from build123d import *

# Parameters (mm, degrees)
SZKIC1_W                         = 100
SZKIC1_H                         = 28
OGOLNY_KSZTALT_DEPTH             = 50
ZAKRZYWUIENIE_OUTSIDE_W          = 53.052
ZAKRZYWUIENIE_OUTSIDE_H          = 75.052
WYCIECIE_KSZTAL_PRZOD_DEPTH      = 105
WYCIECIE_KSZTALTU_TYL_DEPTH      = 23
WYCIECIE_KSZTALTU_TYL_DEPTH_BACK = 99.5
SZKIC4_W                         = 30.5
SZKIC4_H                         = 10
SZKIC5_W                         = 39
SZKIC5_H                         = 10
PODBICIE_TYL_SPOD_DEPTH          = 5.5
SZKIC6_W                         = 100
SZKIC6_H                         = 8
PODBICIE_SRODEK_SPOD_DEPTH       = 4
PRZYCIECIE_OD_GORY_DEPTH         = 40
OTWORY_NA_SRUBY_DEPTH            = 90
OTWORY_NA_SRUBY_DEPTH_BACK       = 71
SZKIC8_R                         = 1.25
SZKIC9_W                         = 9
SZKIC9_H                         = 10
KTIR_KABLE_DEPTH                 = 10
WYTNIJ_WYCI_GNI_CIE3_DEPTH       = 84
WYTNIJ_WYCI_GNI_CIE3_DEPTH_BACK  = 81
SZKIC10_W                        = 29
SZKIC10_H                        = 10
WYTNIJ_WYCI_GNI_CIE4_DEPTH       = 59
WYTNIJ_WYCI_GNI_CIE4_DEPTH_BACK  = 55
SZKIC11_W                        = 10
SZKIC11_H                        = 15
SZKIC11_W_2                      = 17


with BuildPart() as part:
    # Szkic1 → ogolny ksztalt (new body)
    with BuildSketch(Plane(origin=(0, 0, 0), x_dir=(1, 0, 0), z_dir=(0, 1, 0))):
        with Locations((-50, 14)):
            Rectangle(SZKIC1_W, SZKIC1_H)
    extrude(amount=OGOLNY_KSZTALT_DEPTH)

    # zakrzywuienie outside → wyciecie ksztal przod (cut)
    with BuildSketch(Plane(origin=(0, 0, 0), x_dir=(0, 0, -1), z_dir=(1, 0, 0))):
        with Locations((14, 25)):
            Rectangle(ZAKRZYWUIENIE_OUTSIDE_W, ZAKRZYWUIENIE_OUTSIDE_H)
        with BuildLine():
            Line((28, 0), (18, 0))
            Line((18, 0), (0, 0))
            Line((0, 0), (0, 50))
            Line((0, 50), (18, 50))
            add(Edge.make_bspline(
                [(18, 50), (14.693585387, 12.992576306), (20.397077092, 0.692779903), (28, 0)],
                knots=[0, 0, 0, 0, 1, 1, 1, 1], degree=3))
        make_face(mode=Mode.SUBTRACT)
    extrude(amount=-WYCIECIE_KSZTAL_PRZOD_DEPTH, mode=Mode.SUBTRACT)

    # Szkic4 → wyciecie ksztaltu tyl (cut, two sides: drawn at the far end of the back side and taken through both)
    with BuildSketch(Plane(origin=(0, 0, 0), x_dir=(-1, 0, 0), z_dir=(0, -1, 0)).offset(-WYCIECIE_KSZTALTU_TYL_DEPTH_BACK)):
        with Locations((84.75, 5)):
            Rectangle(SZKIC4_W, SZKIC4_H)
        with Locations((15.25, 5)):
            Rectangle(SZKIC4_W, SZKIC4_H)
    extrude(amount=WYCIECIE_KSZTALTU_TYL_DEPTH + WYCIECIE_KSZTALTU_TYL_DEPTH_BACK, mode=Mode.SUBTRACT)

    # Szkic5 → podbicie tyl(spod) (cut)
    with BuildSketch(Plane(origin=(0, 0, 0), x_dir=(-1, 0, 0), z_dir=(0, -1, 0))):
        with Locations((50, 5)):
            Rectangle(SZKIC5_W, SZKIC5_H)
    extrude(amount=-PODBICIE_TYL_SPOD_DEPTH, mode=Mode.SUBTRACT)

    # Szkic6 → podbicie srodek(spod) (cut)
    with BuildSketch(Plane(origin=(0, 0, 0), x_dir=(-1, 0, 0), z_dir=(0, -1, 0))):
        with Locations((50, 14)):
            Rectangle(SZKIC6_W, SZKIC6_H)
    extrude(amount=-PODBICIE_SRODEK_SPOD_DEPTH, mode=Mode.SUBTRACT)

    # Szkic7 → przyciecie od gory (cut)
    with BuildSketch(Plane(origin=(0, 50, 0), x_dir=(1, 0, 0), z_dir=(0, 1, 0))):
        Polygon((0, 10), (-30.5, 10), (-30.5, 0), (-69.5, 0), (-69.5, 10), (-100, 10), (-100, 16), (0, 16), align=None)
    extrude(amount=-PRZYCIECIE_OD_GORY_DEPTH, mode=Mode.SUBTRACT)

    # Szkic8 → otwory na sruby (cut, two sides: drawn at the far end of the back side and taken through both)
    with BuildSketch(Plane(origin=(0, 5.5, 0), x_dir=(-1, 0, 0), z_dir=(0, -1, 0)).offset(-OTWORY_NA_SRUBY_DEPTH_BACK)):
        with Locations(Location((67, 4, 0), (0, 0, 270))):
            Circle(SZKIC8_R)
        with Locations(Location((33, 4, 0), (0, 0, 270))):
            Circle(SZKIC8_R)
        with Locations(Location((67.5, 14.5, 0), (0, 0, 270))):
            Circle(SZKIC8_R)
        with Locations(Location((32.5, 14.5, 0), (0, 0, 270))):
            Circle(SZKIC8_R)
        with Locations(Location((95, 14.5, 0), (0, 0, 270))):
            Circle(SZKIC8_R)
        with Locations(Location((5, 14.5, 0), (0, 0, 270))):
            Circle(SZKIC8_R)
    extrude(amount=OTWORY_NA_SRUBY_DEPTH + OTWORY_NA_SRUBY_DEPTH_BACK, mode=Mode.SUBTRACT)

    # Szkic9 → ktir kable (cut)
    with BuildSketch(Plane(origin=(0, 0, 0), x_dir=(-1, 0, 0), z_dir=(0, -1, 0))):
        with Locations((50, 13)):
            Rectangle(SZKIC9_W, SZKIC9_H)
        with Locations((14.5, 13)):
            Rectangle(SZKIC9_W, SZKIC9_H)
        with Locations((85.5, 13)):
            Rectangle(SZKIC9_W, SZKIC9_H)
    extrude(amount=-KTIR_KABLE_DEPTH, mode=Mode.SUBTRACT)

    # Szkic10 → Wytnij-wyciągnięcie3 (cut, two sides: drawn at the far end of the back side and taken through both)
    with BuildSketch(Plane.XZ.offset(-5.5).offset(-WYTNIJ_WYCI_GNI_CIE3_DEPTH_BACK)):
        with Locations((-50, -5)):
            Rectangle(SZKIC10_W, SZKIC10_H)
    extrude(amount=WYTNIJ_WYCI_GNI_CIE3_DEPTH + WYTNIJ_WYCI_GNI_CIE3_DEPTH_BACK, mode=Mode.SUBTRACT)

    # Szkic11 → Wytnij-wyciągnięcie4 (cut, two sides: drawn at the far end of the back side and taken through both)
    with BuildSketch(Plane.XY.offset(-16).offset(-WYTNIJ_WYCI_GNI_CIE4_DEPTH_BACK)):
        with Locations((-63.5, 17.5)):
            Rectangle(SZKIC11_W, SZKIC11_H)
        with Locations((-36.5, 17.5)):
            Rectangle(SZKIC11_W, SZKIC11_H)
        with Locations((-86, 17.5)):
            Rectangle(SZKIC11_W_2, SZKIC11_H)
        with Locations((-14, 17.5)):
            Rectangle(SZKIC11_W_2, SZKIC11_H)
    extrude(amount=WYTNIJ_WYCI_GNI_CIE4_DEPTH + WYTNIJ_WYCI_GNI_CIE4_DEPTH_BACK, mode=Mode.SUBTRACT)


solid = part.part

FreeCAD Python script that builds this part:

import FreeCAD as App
import Part
import Sketcher

V = App.Vector


def add_polygon(sketch, points):
    """Adds a closed chain of lines whose ends are joined by coincident constraints."""
    first, n = sketch.GeometryCount, len(points)
    for a, b in zip(points, points[1:] + points[:1]):
        sketch.addGeometry(Part.LineSegment(App.Vector(*a, 0), App.Vector(*b, 0)), False)
    for i in range(n):
        sketch.addConstraint(Sketcher.Constraint("Coincident", first + i, 2, first + (i + 1) % n, 1))

doc = App.newDocument("Part")
body = doc.addObject("PartDesign::Body", "Body")

# Sketch on XZ plane
sketch1 = body.newObject("Sketcher::SketchObject", "Sketch")
sketch1.AttachmentSupport = (doc.getObject("XZ_Plane"), [""])
sketch1.MapMode = "FlatFace"
add_polygon(sketch1, [(-100, -28), (-100, 0), (0, 0), (0, -28)])  # lines 0-3
sketch1.addConstraint(Sketcher.Constraint("Vertical", 0))
sketch1.addConstraint(Sketcher.Constraint("Horizontal", 1))
sketch1.addConstraint(Sketcher.Constraint("Vertical", 2))
sketch1.addConstraint(Sketcher.Constraint("Horizontal", 3))
sketch1.addConstraint(Sketcher.Constraint("Coincident", 1, 2, -1, 1))
sketch1.addConstraint(Sketcher.Constraint("DistanceX", 1, 1, 1, 2, 100.0))
sketch1.addConstraint(Sketcher.Constraint("DistanceY", 0, 1, 0, 2, 28.0))
pad1 = body.newObject("PartDesign::Pad", "Pad")
pad1.Profile = sketch1
pad1.Length = 50
pad1.Reversed = True

# Sketch on YZ plane
sketch2 = body.newObject("Sketcher::SketchObject", "Sketch001")
sketch2.AttachmentSupport = (doc.getObject("YZ_Plane"), [""])
sketch2.MapMode = "FlatFace"
add_polygon(sketch2, [(62.526, 12.526), (-12.526, 12.526), (-12.526, -40.526), (62.526, -40.526)])  # lines 0-3
sketch2.addGeometry(Part.BSplineCurve([V(50, -18, 0), V(12.992576, -14.693585, 0), V(0.69278, -20.397077, 0), V(0, -28, 0)], [4, 4], [0, 1], False, 3, [1, 1, 1, 1], False), False)  # 4
sketch2.addGeometry(Part.LineSegment(V(0, -28, 0), V(0, 0, 0)), False)  # 5
sketch2.addGeometry(Part.LineSegment(V(0, 0, 0), V(50, 0, 0)), False)  # 6
sketch2.addGeometry(Part.LineSegment(V(50, 0, 0), V(50, -18, 0)), False)  # 7
sketch2.addConstraint(Sketcher.Constraint("Block", 4))
sketch2.addConstraint(Sketcher.Constraint("Coincident", 4, 2, 5, 1))
sketch2.addConstraint(Sketcher.Constraint("Coincident", 5, 2, 6, 1))
sketch2.addConstraint(Sketcher.Constraint("Coincident", 6, 2, 7, 1))
sketch2.addConstraint(Sketcher.Constraint("Coincident", 7, 2, 4, 1))
sketch2.addConstraint(Sketcher.Constraint("Horizontal", 0))
sketch2.addConstraint(Sketcher.Constraint("Vertical", 1))
sketch2.addConstraint(Sketcher.Constraint("Horizontal", 2))
sketch2.addConstraint(Sketcher.Constraint("Vertical", 3))
sketch2.addConstraint(Sketcher.Constraint("Vertical", 5))
sketch2.addConstraint(Sketcher.Constraint("Horizontal", 6))
sketch2.addConstraint(Sketcher.Constraint("Vertical", 7))
sketch2.addConstraint(Sketcher.Constraint("PointOnObject", 6, 2, -1))
sketch2.addConstraint(Sketcher.Constraint("DistanceX", 0, 2, 0, 1, 75.052))
sketch2.addConstraint(Sketcher.Constraint("DistanceY", 1, 2, 1, 1, 53.052))
sketch2.addConstraint(Sketcher.Constraint("DistanceX", 0, 2, -1, 1, 12.526))
sketch2.addConstraint(Sketcher.Constraint("DistanceY", -1, 1, 0, 2, 12.526))
pocket1 = body.newObject("PartDesign::Pocket", "Pocket")
pocket1.Profile = sketch2
pocket1.Length = 105

# Sketch on XZ plane
sketch3 = body.newObject("Sketcher::SketchObject", "Sketch002")
sketch3.AttachmentSupport = (doc.getObject("XZ_Plane"), [""])
sketch3.MapMode = "FlatFace"
add_polygon(sketch3, [(-70, -10), (-70, 0), (-100, 0), (-100, -10)])  # lines 0-3
add_polygon(sketch3, [(0, -10), (0, 0), (-30, 0), (-30, -10)])  # lines 4-7
sketch3.addConstraint(Sketcher.Constraint("Vertical", 0))
sketch3.addConstraint(Sketcher.Constraint("Horizontal", 1))
sketch3.addConstraint(Sketcher.Constraint("Vertical", 2))
sketch3.addConstraint(Sketcher.Constraint("Horizontal", 3))
sketch3.addConstraint(Sketcher.Constraint("Vertical", 4))
sketch3.addConstraint(Sketcher.Constraint("Horizontal", 5))
sketch3.addConstraint(Sketcher.Constraint("Vertical", 6))
sketch3.addConstraint(Sketcher.Constraint("Horizontal", 7))
sketch3.addConstraint(Sketcher.Constraint("Coincident", 4, 2, -1, 1))
sketch3.addConstraint(Sketcher.Constraint("PointOnObject", 0, 2, -1))
sketch3.addConstraint(Sketcher.Constraint("Horizontal", 3, 2, 6, 2))
sketch3.addConstraint(Sketcher.Constraint("Equal", 3, 5))
sketch3.addConstraint(Sketcher.Constraint("DistanceY", 0, 1, 0, 2, 10.0))
sketch3.addConstraint(Sketcher.Constraint("DistanceX", 1, 2, 1, 1, 30.5))
sketch3.addConstraint(Sketcher.Constraint("DistanceX", 1, 2, -1, 1, 100.0))
pocket2 = body.newObject("PartDesign::Pocket", "Pocket001")
pocket2.Profile = sketch3
pocket2.Type = "ThroughAll"
pocket2.Midplane = True

# Sketch on XZ plane
sketch4 = body.newObject("Sketcher::SketchObject", "Sketch003")
sketch4.AttachmentSupport = (doc.getObject("XZ_Plane"), [""])
sketch4.MapMode = "FlatFace"
add_polygon(sketch4, [(-30, -10), (-30, 0), (-70, 0), (-70, -10)])  # lines 0-3
sketch4.addConstraint(Sketcher.Constraint("Vertical", 0))
sketch4.addConstraint(Sketcher.Constraint("Horizontal", 1))
sketch4.addConstraint(Sketcher.Constraint("Vertical", 2))
sketch4.addConstraint(Sketcher.Constraint("Horizontal", 3))
sketch4.addConstraint(Sketcher.Constraint("PointOnObject", 0, 2, -1))
sketch4.addConstraint(Sketcher.Constraint("DistanceX", 1, 2, 1, 1, 39.0))
sketch4.addConstraint(Sketcher.Constraint("DistanceY", 0, 1, 0, 2, 10.0))
sketch4.addConstraint(Sketcher.Constraint("DistanceX", 0, 2, -1, 1, 30.5))
pocket3 = body.newObject("PartDesign::Pocket", "Pocket002")
pocket3.Profile = sketch4
pocket3.Length = 5.5

# Sketch on XZ plane
sketch5 = body.newObject("Sketcher::SketchObject", "Sketch004")
sketch5.AttachmentSupport = (doc.getObject("XZ_Plane"), [""])
sketch5.MapMode = "FlatFace"
add_polygon(sketch5, [(0, -18), (0, -10), (-100, -10), (-100, -18)])  # lines 0-3
sketch5.addConstraint(Sketcher.Constraint("Vertical", 0))
sketch5.addConstraint(Sketcher.Constraint("Horizontal", 1))
sketch5.addConstraint(Sketcher.Constraint("Vertical", 2))
sketch5.addConstraint(Sketcher.Constraint("Horizontal", 3))
sketch5.addConstraint(Sketcher.Constraint("PointOnObject", 0, 2, -2))
sketch5.addConstraint(Sketcher.Constraint("DistanceX", 1, 2, 1, 1, 100.0))
sketch5.addConstraint(Sketcher.Constraint("DistanceY", 0, 1, 0, 2, 8.0))
sketch5.addConstraint(Sketcher.Constraint("DistanceY", 0, 2, -1, 1, 10.0))
pocket4 = body.newObject("PartDesign::Pocket", "Pocket003")
pocket4.Profile = sketch5
pocket4.Length = 4

# Sketch on XZ plane
sketch6 = body.newObject("Sketcher::SketchObject", "Sketch005")
sketch6.AttachmentSupport = (doc.getObject("XZ_Plane"), [""])
sketch6.MapMode = "FlatFace"
sketch6.AttachmentOffset = App.Placement(V(0, 0, -50), App.Rotation())
add_polygon(sketch6, [(-30, -10), (0, -10), (0, -16), (-100, -16), (-100, -10), (-70, -10), (-70, 0), (-30, 0)])  # lines 0-7
sketch6.addConstraint(Sketcher.Constraint("Horizontal", 0))
sketch6.addConstraint(Sketcher.Constraint("Vertical", 1))
sketch6.addConstraint(Sketcher.Constraint("Horizontal", 2))
sketch6.addConstraint(Sketcher.Constraint("Vertical", 3))
sketch6.addConstraint(Sketcher.Constraint("Horizontal", 4))
sketch6.addConstraint(Sketcher.Constraint("Vertical", 5))
sketch6.addConstraint(Sketcher.Constraint("Horizontal", 6))
sketch6.addConstraint(Sketcher.Constraint("Vertical", 7))
sketch6.addConstraint(Sketcher.Constraint("PointOnObject", 0, 2, -2))
sketch6.addConstraint(Sketcher.Constraint("PointOnObject", 5, 2, -1))
sketch6.addConstraint(Sketcher.Constraint("Horizontal", 0, 2, 3, 2))
sketch6.addConstraint(Sketcher.Constraint("Equal", 0, 4))
sketch6.addConstraint(Sketcher.Constraint("DistanceX", 2, 2, 2, 1, 100.0))
sketch6.addConstraint(Sketcher.Constraint("DistanceX", 6, 1, 6, 2, 39.0))
sketch6.addConstraint(Sketcher.Constraint("DistanceY", 1, 2, 1, 1, 6.0))
sketch6.addConstraint(Sketcher.Constraint("DistanceY", 5, 1, 5, 2, 10.0))
pocket5 = body.newObject("PartDesign::Pocket", "Pocket004")
pocket5.Profile = sketch6
pocket5.Length = 40
pocket5.Reversed = True

# Sketch on XZ plane
sketch7 = body.newObject("Sketcher::SketchObject", "Sketch006")
sketch7.AttachmentSupport = (doc.getObject("XZ_Plane"), [""])
sketch7.MapMode = "FlatFace"
sketch7.AttachmentOffset = App.Placement(V(0, 0, -5.5), App.Rotation())
sketch7.addGeometry(Part.Circle(V(-67, -4, 0), V(0, 0, 1), 1.2), False)
sketch7.addGeometry(Part.Circle(V(-33, -4, 0), V(0, 0, 1), 1.2), False)
sketch7.addGeometry(Part.Circle(V(-67.5, -14.5, 0), V(0, 0, 1), 1.2), False)
sketch7.addGeometry(Part.Circle(V(-32.5, -14.5, 0), V(0, 0, 1), 1.2), False)
sketch7.addGeometry(Part.Circle(V(-95, -14.5, 0), V(0, 0, 1), 1.2), False)
sketch7.addGeometry(Part.Circle(V(-5, -14.5, 0), V(0, 0, 1), 1.2), False)
sketch7.addConstraint(Sketcher.Constraint("Equal", 0, 1))
sketch7.addConstraint(Sketcher.Constraint("Equal", 1, 2))
sketch7.addConstraint(Sketcher.Constraint("Equal", 2, 3))
sketch7.addConstraint(Sketcher.Constraint("Equal", 3, 4))
sketch7.addConstraint(Sketcher.Constraint("Equal", 4, 5))
sketch7.addConstraint(Sketcher.Constraint("Horizontal", 0, 3, 1, 3))
sketch7.addConstraint(Sketcher.Constraint("Horizontal", 2, 3, 3, 3))
sketch7.addConstraint(Sketcher.Constraint("Horizontal", 3, 3, 4, 3))
sketch7.addConstraint(Sketcher.Constraint("Horizontal", 4, 3, 5, 3))
sketch7.addConstraint(Sketcher.Constraint("Diameter", 0, 2.5))
sketch7.addConstraint(Sketcher.Constraint("DistanceX", 0, 3, -1, 1, 67.0))
sketch7.addConstraint(Sketcher.Constraint("DistanceY", 0, 3, -1, 1, 4.0))
sketch7.addConstraint(Sketcher.Constraint("DistanceX", 1, 3, -1, 1, 33.0))
sketch7.addConstraint(Sketcher.Constraint("DistanceX", 4, 3, -1, 1, 95.0))
sketch7.addConstraint(Sketcher.Constraint("DistanceX", 5, 3, -1, 1, 5.0))
sketch7.addConstraint(Sketcher.Constraint("DistanceX", 2, 3, 3, 3, 35.0))
sketch7.addConstraint(Sketcher.Constraint("DistanceX", 2, 3, -1, 1, 67.5))
sketch7.addConstraint(Sketcher.Constraint("DistanceY", 2, 3, -1, 1, 14.5))
pocket6 = body.newObject("PartDesign::Pocket", "Pocket005")
pocket6.Profile = sketch7
pocket6.Type = "ThroughAll"
pocket6.Midplane = True

# Sketch on XZ plane
sketch8 = body.newObject("Sketcher::SketchObject", "Sketch007")
sketch8.AttachmentSupport = (doc.getObject("XZ_Plane"), [""])
sketch8.MapMode = "FlatFace"
add_polygon(sketch8, [(-46, -18), (-46, -8), (-54, -8), (-54, -18)])  # lines 0-3
add_polygon(sketch8, [(-10, -18), (-10, -8), (-19, -8), (-19, -18)])  # lines 4-7
add_polygon(sketch8, [(-81, -18), (-81, -8), (-90, -8), (-90, -18)])  # lines 8-11
sketch8.addConstraint(Sketcher.Constraint("Vertical", 0))
sketch8.addConstraint(Sketcher.Constraint("Horizontal", 1))
sketch8.addConstraint(Sketcher.Constraint("Vertical", 2))
sketch8.addConstraint(Sketcher.Constraint("Horizontal", 3))
sketch8.addConstraint(Sketcher.Constraint("Vertical", 4))
sketch8.addConstraint(Sketcher.Constraint("Horizontal", 5))
sketch8.addConstraint(Sketcher.Constraint("Vertical", 6))
sketch8.addConstraint(Sketcher.Constraint("Horizontal", 7))
sketch8.addConstraint(Sketcher.Constraint("Vertical", 8))
sketch8.addConstraint(Sketcher.Constraint("Horizontal", 9))
sketch8.addConstraint(Sketcher.Constraint("Vertical", 10))
sketch8.addConstraint(Sketcher.Constraint("Horizontal", 11))
sketch8.addConstraint(Sketcher.Constraint("Horizontal", 1, 2, 4, 2))
sketch8.addConstraint(Sketcher.Constraint("Horizontal", 3, 2, 6, 2))
sketch8.addConstraint(Sketcher.Constraint("Horizontal", 5, 2, 8, 2))
sketch8.addConstraint(Sketcher.Constraint("Horizontal", 7, 2, 10, 2))
sketch8.addConstraint(Sketcher.Constraint("Equal", 3, 5))
sketch8.addConstraint(Sketcher.Constraint("Equal", 7, 9))
sketch8.addConstraint(Sketcher.Constraint("DistanceX", 1, 2, 1, 1, 9.0))
sketch8.addConstraint(Sketcher.Constraint("DistanceY", 0, 1, 0, 2, 10.0))
sketch8.addConstraint(Sketcher.Constraint("DistanceY", 0, 2, -1, 1, 8.0))
sketch8.addConstraint(Sketcher.Constraint("DistanceX", 4, 2, -1, 1, 10.0))
sketch8.addConstraint(Sketcher.Constraint("DistanceX", 8, 2, -1, 1, 81.0))
sketch8.addConstraint(Sketcher.Constraint("DistanceX", 0, 2, -1, 1, 45.5))
pocket7 = body.newObject("PartDesign::Pocket", "Pocket006")
pocket7.Profile = sketch8
pocket7.Length = 10

# Sketch on XZ plane
sketch9 = body.newObject("Sketcher::SketchObject", "Sketch008")
sketch9.AttachmentSupport = (doc.getObject("XZ_Plane"), [""])
sketch9.MapMode = "FlatFace"
sketch9.AttachmentOffset = App.Placement(V(0, 0, -5.5), App.Rotation())
add_polygon(sketch9, [(-64, 0), (-64, -10), (-36, -10), (-36, 0)])  # lines 0-3
sketch9.addConstraint(Sketcher.Constraint("Vertical", 0))
sketch9.addConstraint(Sketcher.Constraint("Horizontal", 1))
sketch9.addConstraint(Sketcher.Constraint("Vertical", 2))
sketch9.addConstraint(Sketcher.Constraint("Horizontal", 3))
sketch9.addConstraint(Sketcher.Constraint("PointOnObject", 2, 2, -1))
sketch9.addConstraint(Sketcher.Constraint("DistanceX", 1, 1, 1, 2, 29.0))
sketch9.addConstraint(Sketcher.Constraint("DistanceY", 0, 2, 0, 1, 10.0))
sketch9.addConstraint(Sketcher.Constraint("DistanceX", 0, 2, -1, 1, 64.5))
pocket8 = body.newObject("PartDesign::Pocket", "Pocket007")
pocket8.Profile = sketch9
pocket8.Type = "ThroughAll"
pocket8.Midplane = True

# Sketch on XY plane
sketch10 = body.newObject("Sketcher::SketchObject", "Sketch009")
sketch10.AttachmentSupport = (doc.getObject("XY_Plane"), [""])
sketch10.MapMode = "FlatFace"
sketch10.AttachmentOffset = App.Placement(V(0, 0, -16), App.Rotation())
add_polygon(sketch10, [(-68, 25), (-68, 10), (-58, 10), (-58, 25)])  # lines 0-3
add_polygon(sketch10, [(-42, 25), (-42, 10), (-32, 10), (-32, 25)])  # lines 4-7
add_polygon(sketch10, [(-94, 25), (-94, 10), (-78, 10), (-78, 25)])  # lines 8-11
add_polygon(sketch10, [(-22, 25), (-22, 10), (-6, 10), (-6, 25)])  # lines 12-15
sketch10.addConstraint(Sketcher.Constraint("Vertical", 0))
sketch10.addConstraint(Sketcher.Constraint("Horizontal", 1))
sketch10.addConstraint(Sketcher.Constraint("Vertical", 2))
sketch10.addConstraint(Sketcher.Constraint("Horizontal", 3))
sketch10.addConstraint(Sketcher.Constraint("Vertical", 4))
sketch10.addConstraint(Sketcher.Constraint("Horizontal", 5))
sketch10.addConstraint(Sketcher.Constraint("Vertical", 6))
sketch10.addConstraint(Sketcher.Constraint("Horizontal", 7))
sketch10.addConstraint(Sketcher.Constraint("Vertical", 8))
sketch10.addConstraint(Sketcher.Constraint("Horizontal", 9))
sketch10.addConstraint(Sketcher.Constraint("Vertical", 10))
sketch10.addConstraint(Sketcher.Constraint("Horizontal", 11))
sketch10.addConstraint(Sketcher.Constraint("Vertical", 12))
sketch10.addConstraint(Sketcher.Constraint("Horizontal", 13))
sketch10.addConstraint(Sketcher.Constraint("Vertical", 14))
sketch10.addConstraint(Sketcher.Constraint("Horizontal", 15))
sketch10.addConstraint(Sketcher.Constraint("Horizontal", 1, 2, 4, 2))
sketch10.addConstraint(Sketcher.Constraint("Horizontal", 3, 2, 6, 2))
sketch10.addConstraint(Sketcher.Constraint("Horizontal", 5, 2, 8, 2))
sketch10.addConstraint(Sketcher.Constraint("Horizontal", 7, 2, 10, 2))
sketch10.addConstraint(Sketcher.Constraint("Horizontal", 9, 2, 12, 2))
sketch10.addConstraint(Sketcher.Constraint("Horizontal", 11, 2, 14, 2))
sketch10.addConstraint(Sketcher.Constraint("Equal", 3, 5))
sketch10.addConstraint(Sketcher.Constraint("Equal", 11, 13))
sketch10.addConstraint(Sketcher.Constraint("DistanceX", 1, 1, 1, 2, 10.0))
sketch10.addConstraint(Sketcher.Constraint("DistanceX", 9, 1, 9, 2, 17.0))
sketch10.addConstraint(Sketcher.Constraint("DistanceY", 0, 2, 0, 1, 15.0))
sketch10.addConstraint(Sketcher.Constraint("DistanceY", -1, 1, 0, 2, 10.0))
sketch10.addConstraint(Sketcher.Constraint("DistanceX", 1, 2, 4, 2, 17.0))
sketch10.addConstraint(Sketcher.Constraint("DistanceX", 8, 2, 0, 2, 26.0))
sketch10.addConstraint(Sketcher.Constraint("DistanceX", 5, 2, 12, 2, 9.0))
sketch10.addConstraint(Sketcher.Constraint("DistanceX", 0, 2, -1, 1, 68.5))
pocket9 = body.newObject("PartDesign::Pocket", "Pocket008")
pocket9.Profile = sketch10
pocket9.Type = "ThroughAll"
pocket9.Midplane = True

doc.recompute()
